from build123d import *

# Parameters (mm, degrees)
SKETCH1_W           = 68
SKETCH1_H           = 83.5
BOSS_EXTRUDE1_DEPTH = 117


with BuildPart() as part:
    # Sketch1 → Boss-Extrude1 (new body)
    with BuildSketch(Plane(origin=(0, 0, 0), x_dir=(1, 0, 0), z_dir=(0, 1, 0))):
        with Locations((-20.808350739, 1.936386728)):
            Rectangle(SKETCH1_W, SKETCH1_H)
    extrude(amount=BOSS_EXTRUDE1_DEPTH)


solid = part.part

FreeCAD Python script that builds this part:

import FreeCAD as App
import Part
import Sketcher
Q = App.Units.Quantity


def add_polygon(sketch, points):
    """Adds a closed chain of lines whose ends are joined by coincident constraints."""
    first, n = sketch.GeometryCount, len(points)
    for a, b in zip(points, points[1:] + points[:1]):
        sketch.addGeometry(Part.LineSegment(App.Vector(*a, 0), App.Vector(*b, 0)), False)
    for i in range(n):
        sketch.addConstraint(Sketcher.Constraint("Coincident", first + i, 2, first + (i + 1) % n, 1))

doc = App.newDocument("Part")
body = doc.addObject("PartDesign::Body", "Body")

# Sketch on XZ plane
sketch1 = body.newObject("Sketcher::SketchObject", "Sketch")
sketch1.AttachmentSupport = (doc.getObject("XZ_Plane"), [""])
sketch1.MapMode = "FlatFace"
add_polygon(sketch1, [(-55, -44), (-55, 40), (13, 40), (13, -44)])  # lines 0-3
sketch1.addConstraint([
    Sketcher.Constraint("Vertical", 0),
    Sketcher.Constraint("Horizontal", 1),
    Sketcher.Constraint("Vertical", 2),
    Sketcher.Constraint("Horizontal", 3),
    Sketcher.Constraint("DistanceX", 1, 1, 1, 2, Q("68 mm")),
    Sketcher.Constraint("DistanceY", 0, 1, 0, 2, Q("83.5 mm")),
    Sketcher.Constraint("DistanceX", 0, 2, -1, 1, Q("54.808351 mm")),
    Sketcher.Constraint("DistanceY", -1, 1, 0, 2, Q("39.813613 mm")),
])
pad1 = body.newObject("PartDesign::Pad", "Pad")
pad1.Profile = sketch1
pad1.Length = 117
pad1.Reversed = True

doc.recompute()
